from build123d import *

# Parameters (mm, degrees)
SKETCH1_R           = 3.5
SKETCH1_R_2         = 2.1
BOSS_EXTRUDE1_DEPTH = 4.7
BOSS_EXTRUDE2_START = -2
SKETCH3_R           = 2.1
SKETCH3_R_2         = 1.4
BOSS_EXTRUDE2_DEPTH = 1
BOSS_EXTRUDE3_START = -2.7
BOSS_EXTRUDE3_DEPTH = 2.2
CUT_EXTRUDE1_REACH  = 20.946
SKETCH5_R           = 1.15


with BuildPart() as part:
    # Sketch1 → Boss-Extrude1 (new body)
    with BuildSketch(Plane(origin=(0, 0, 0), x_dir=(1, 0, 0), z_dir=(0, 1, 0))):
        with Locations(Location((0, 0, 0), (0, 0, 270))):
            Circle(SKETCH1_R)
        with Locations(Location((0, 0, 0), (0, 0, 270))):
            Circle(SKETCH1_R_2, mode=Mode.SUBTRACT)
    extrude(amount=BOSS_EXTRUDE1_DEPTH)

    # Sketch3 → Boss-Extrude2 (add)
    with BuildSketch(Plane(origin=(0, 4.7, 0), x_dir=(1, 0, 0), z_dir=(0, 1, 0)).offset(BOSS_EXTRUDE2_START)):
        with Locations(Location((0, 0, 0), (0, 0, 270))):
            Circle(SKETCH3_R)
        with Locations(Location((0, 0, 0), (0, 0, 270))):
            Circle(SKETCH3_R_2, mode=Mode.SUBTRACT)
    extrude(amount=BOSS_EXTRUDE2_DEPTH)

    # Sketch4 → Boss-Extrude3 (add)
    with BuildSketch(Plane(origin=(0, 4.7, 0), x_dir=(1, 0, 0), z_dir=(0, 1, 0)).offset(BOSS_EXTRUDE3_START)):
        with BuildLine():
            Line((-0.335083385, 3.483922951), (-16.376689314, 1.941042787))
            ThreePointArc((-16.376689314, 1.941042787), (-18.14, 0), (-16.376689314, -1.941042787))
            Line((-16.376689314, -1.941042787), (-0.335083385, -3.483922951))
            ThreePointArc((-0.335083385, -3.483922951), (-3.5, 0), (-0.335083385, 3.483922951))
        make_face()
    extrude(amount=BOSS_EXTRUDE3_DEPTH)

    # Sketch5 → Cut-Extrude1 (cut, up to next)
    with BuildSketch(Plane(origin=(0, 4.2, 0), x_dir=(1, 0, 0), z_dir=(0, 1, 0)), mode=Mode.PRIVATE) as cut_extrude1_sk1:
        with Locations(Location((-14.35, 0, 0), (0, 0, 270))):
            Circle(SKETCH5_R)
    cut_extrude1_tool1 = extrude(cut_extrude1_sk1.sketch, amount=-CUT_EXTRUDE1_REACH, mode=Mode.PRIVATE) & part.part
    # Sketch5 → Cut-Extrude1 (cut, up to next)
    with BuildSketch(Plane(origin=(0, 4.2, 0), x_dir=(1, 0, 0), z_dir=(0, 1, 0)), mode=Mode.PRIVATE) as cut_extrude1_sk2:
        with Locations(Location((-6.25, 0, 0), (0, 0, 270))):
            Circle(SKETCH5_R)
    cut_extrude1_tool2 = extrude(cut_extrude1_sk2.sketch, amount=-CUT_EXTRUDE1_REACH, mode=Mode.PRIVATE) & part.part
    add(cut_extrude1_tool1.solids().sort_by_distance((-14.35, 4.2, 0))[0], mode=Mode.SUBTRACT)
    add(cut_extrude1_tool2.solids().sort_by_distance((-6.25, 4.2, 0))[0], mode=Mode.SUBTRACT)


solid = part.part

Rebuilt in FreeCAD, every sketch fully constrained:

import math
import FreeCAD as App
import Part
import Sketcher
from FreeCAD import Vector
Q = App.Units.Quantity

doc = App.newDocument("Part")
body = doc.addObject("PartDesign::Body", "Body")

# Sketch on XZ plane
sketch1 = body.newObject("Sketcher::SketchObject", "Sketch")
sketch1.AttachmentSupport = (doc.getObject("XZ_Plane"), [""])
sketch1.MapMode = "FlatFace"
sketch1.addGeometry(Part.Circle(Vector(0, 0, 0), Vector(0, 0, 1), 3.5), False)
sketch1.addGeometry(Part.Circle(Vector(0, 0, 0), Vector(0, 0, 1), 2.1), False)
sketch1.addConstraint(Sketcher.Constraint("Coincident", 0, 3, -1, 1))
sketch1.addConstraint(Sketcher.Constraint("Coincident", 1, 3, -1, 1))
sketch1.addConstraint(Sketcher.Constraint("Diameter", 0, Q("7 mm")))
sketch1.addConstraint(Sketcher.Constraint("Diameter", 1, Q("4.2 mm")))
pad1 = body.newObject("PartDesign::Pad", "Pad")
pad1.Profile = sketch1
pad1.Length = 4.7
pad1.Reversed = True

# Sketch on XZ plane
sketch2 = body.newObject("Sketcher::SketchObject", "Sketch001")
sketch2.AttachmentSupport = (doc.getObject("XZ_Plane"), [""])
sketch2.MapMode = "FlatFace"
sketch2.AttachmentOffset = App.Placement(Vector(0, 0, -2.7), App.Rotation())
sketch2.addGeometry(Part.Circle(Vector(0, 0, 0), Vector(0, 0, 1), 2.1), False)
sketch2.addGeometry(Part.Circle(Vector(0, 0, 0), Vector(0, 0, 1), 1.4), False)
sketch2.addConstraint(Sketcher.Constraint("Coincident", 0, 3, -1, 1))
sketch2.addConstraint(Sketcher.Constraint("Coincident", 1, 3, -1, 1))
sketch2.addConstraint(Sketcher.Constraint("Diameter", 0, Q("4.2 mm")))
sketch2.addConstraint(Sketcher.Constraint("Diameter", 1, Q("2.8 mm")))
pad2 = body.newObject("PartDesign::Pad", "Pad001")
pad2.Profile = sketch2
pad2.Length = 1
pad2.Reversed = True

# Sketch on XZ plane
sketch3 = body.newObject("Sketcher::SketchObject", "Sketch002")
sketch3.AttachmentSupport = (doc.getObject("XZ_Plane"), [""])
sketch3.MapMode = "FlatFace"
sketch3.AttachmentOffset = App.Placement(Vector(0, 0, -2), App.Rotation())
sketch3.addGeometry(Part.LineSegment(Vector(-0.335083, -3.483923, 0), Vector(-16.376689, -1.941043, 0)), False)
sketch3.addGeometry(Part.ArcOfCircle(Part.Circle(Vector(-16.19, 0, 0), Vector(0, 0, 1), 1.95), math.radians(95.493804), math.radians(264.506196)), False)
sketch3.addGeometry(Part.LineSegment(Vector(-16.376689, 1.941043, 0), Vector(-0.335083, 3.483923, 0)), False)
sketch3.addGeometry(Part.ArcOfCircle(Part.Circle(Vector(0, 0, 0), Vector(0, 0, 1), 3.5), math.radians(95.493804), math.radians(264.506196)), False)
sketch3.addConstraint(Sketcher.Constraint("Tangent", 0, 2, 1, 2))
sketch3.addConstraint(Sketcher.Constraint("Tangent", 1, 1, 2, 1))
sketch3.addConstraint(Sketcher.Constraint("Tangent", 2, 2, 3, 1))
sketch3.addConstraint(Sketcher.Constraint("Tangent", 3, 2, 0, 1))
sketch3.addConstraint(Sketcher.Constraint("Coincident", 3, 3, -1, 1))
sketch3.addConstraint(Sketcher.Constraint("PointOnObject", 1, 3, -1))
sketch3.addConstraint(Sketcher.Constraint("Radius", 3, Q("3.5 mm")))
sketch3.addConstraint(Sketcher.Constraint("Radius", 1, Q("1.95 mm")))
sketch3.addConstraint(Sketcher.Constraint("DistanceX", 1, 3, -1, 1, Q("16.19 mm")))
pad3 = body.newObject("PartDesign::Pad", "Pad002")
pad3.Profile = sketch3
pad3.Length = 2.2
pad3.Reversed = True

# Sketch on XZ plane
sketch4 = body.newObject("Sketcher::SketchObject", "Sketch003")
sketch4.AttachmentSupport = (doc.getObject("XZ_Plane"), [""])
sketch4.MapMode = "FlatFace"
sketch4.AttachmentOffset = App.Placement(Vector(0, 0, -4.2), App.Rotation())
sketch4.addGeometry(Part.Circle(Vector(-14.35, 0, 0), Vector(0, 0, 1), 1.15), False)
sketch4.addConstraint(Sketcher.Constraint("PointOnObject", 0, 3, -1))
sketch4.addConstraint(Sketcher.Constraint("Diameter", 0, Q("2.3 mm")))
sketch4.addConstraint(Sketcher.Constraint("DistanceX", 0, 3, -1, 1, Q("14.35 mm")))
pocket1 = body.newObject("PartDesign::Pocket", "Pocket")
pocket1.Profile = sketch4
pocket1.Type = "UpToFirst"
pocket1.Reversed = True

# Sketch on XZ plane
sketch5 = body.newObject("Sketcher::SketchObject", "Sketch004")
sketch5.AttachmentSupport = (doc.getObject("XZ_Plane"), [""])
sketch5.MapMode = "FlatFace"
sketch5.AttachmentOffset = App.Placement(Vector(0, 0, -4.2), App.Rotation())
sketch5.addGeometry(Part.Circle(Vector(-6.25, 0, 0), Vector(0, 0, 1), 1.15), False)
sketch5.addConstraint(Sketcher.Constraint("PointOnObject", 0, 3, -1))
sketch5.addConstraint(Sketcher.Constraint("Diameter", 0, Q("2.3 mm")))
sketch5.addConstraint(Sketcher.Constraint("DistanceX", 0, 3, -1, 1, Q("6.25 mm")))
pocket2 = body.newObject("PartDesign::Pocket", "Pocket001")
pocket2.Profile = sketch5
pocket2.Type = "UpToFirst"
pocket2.Reversed = True

doc.recompute()
